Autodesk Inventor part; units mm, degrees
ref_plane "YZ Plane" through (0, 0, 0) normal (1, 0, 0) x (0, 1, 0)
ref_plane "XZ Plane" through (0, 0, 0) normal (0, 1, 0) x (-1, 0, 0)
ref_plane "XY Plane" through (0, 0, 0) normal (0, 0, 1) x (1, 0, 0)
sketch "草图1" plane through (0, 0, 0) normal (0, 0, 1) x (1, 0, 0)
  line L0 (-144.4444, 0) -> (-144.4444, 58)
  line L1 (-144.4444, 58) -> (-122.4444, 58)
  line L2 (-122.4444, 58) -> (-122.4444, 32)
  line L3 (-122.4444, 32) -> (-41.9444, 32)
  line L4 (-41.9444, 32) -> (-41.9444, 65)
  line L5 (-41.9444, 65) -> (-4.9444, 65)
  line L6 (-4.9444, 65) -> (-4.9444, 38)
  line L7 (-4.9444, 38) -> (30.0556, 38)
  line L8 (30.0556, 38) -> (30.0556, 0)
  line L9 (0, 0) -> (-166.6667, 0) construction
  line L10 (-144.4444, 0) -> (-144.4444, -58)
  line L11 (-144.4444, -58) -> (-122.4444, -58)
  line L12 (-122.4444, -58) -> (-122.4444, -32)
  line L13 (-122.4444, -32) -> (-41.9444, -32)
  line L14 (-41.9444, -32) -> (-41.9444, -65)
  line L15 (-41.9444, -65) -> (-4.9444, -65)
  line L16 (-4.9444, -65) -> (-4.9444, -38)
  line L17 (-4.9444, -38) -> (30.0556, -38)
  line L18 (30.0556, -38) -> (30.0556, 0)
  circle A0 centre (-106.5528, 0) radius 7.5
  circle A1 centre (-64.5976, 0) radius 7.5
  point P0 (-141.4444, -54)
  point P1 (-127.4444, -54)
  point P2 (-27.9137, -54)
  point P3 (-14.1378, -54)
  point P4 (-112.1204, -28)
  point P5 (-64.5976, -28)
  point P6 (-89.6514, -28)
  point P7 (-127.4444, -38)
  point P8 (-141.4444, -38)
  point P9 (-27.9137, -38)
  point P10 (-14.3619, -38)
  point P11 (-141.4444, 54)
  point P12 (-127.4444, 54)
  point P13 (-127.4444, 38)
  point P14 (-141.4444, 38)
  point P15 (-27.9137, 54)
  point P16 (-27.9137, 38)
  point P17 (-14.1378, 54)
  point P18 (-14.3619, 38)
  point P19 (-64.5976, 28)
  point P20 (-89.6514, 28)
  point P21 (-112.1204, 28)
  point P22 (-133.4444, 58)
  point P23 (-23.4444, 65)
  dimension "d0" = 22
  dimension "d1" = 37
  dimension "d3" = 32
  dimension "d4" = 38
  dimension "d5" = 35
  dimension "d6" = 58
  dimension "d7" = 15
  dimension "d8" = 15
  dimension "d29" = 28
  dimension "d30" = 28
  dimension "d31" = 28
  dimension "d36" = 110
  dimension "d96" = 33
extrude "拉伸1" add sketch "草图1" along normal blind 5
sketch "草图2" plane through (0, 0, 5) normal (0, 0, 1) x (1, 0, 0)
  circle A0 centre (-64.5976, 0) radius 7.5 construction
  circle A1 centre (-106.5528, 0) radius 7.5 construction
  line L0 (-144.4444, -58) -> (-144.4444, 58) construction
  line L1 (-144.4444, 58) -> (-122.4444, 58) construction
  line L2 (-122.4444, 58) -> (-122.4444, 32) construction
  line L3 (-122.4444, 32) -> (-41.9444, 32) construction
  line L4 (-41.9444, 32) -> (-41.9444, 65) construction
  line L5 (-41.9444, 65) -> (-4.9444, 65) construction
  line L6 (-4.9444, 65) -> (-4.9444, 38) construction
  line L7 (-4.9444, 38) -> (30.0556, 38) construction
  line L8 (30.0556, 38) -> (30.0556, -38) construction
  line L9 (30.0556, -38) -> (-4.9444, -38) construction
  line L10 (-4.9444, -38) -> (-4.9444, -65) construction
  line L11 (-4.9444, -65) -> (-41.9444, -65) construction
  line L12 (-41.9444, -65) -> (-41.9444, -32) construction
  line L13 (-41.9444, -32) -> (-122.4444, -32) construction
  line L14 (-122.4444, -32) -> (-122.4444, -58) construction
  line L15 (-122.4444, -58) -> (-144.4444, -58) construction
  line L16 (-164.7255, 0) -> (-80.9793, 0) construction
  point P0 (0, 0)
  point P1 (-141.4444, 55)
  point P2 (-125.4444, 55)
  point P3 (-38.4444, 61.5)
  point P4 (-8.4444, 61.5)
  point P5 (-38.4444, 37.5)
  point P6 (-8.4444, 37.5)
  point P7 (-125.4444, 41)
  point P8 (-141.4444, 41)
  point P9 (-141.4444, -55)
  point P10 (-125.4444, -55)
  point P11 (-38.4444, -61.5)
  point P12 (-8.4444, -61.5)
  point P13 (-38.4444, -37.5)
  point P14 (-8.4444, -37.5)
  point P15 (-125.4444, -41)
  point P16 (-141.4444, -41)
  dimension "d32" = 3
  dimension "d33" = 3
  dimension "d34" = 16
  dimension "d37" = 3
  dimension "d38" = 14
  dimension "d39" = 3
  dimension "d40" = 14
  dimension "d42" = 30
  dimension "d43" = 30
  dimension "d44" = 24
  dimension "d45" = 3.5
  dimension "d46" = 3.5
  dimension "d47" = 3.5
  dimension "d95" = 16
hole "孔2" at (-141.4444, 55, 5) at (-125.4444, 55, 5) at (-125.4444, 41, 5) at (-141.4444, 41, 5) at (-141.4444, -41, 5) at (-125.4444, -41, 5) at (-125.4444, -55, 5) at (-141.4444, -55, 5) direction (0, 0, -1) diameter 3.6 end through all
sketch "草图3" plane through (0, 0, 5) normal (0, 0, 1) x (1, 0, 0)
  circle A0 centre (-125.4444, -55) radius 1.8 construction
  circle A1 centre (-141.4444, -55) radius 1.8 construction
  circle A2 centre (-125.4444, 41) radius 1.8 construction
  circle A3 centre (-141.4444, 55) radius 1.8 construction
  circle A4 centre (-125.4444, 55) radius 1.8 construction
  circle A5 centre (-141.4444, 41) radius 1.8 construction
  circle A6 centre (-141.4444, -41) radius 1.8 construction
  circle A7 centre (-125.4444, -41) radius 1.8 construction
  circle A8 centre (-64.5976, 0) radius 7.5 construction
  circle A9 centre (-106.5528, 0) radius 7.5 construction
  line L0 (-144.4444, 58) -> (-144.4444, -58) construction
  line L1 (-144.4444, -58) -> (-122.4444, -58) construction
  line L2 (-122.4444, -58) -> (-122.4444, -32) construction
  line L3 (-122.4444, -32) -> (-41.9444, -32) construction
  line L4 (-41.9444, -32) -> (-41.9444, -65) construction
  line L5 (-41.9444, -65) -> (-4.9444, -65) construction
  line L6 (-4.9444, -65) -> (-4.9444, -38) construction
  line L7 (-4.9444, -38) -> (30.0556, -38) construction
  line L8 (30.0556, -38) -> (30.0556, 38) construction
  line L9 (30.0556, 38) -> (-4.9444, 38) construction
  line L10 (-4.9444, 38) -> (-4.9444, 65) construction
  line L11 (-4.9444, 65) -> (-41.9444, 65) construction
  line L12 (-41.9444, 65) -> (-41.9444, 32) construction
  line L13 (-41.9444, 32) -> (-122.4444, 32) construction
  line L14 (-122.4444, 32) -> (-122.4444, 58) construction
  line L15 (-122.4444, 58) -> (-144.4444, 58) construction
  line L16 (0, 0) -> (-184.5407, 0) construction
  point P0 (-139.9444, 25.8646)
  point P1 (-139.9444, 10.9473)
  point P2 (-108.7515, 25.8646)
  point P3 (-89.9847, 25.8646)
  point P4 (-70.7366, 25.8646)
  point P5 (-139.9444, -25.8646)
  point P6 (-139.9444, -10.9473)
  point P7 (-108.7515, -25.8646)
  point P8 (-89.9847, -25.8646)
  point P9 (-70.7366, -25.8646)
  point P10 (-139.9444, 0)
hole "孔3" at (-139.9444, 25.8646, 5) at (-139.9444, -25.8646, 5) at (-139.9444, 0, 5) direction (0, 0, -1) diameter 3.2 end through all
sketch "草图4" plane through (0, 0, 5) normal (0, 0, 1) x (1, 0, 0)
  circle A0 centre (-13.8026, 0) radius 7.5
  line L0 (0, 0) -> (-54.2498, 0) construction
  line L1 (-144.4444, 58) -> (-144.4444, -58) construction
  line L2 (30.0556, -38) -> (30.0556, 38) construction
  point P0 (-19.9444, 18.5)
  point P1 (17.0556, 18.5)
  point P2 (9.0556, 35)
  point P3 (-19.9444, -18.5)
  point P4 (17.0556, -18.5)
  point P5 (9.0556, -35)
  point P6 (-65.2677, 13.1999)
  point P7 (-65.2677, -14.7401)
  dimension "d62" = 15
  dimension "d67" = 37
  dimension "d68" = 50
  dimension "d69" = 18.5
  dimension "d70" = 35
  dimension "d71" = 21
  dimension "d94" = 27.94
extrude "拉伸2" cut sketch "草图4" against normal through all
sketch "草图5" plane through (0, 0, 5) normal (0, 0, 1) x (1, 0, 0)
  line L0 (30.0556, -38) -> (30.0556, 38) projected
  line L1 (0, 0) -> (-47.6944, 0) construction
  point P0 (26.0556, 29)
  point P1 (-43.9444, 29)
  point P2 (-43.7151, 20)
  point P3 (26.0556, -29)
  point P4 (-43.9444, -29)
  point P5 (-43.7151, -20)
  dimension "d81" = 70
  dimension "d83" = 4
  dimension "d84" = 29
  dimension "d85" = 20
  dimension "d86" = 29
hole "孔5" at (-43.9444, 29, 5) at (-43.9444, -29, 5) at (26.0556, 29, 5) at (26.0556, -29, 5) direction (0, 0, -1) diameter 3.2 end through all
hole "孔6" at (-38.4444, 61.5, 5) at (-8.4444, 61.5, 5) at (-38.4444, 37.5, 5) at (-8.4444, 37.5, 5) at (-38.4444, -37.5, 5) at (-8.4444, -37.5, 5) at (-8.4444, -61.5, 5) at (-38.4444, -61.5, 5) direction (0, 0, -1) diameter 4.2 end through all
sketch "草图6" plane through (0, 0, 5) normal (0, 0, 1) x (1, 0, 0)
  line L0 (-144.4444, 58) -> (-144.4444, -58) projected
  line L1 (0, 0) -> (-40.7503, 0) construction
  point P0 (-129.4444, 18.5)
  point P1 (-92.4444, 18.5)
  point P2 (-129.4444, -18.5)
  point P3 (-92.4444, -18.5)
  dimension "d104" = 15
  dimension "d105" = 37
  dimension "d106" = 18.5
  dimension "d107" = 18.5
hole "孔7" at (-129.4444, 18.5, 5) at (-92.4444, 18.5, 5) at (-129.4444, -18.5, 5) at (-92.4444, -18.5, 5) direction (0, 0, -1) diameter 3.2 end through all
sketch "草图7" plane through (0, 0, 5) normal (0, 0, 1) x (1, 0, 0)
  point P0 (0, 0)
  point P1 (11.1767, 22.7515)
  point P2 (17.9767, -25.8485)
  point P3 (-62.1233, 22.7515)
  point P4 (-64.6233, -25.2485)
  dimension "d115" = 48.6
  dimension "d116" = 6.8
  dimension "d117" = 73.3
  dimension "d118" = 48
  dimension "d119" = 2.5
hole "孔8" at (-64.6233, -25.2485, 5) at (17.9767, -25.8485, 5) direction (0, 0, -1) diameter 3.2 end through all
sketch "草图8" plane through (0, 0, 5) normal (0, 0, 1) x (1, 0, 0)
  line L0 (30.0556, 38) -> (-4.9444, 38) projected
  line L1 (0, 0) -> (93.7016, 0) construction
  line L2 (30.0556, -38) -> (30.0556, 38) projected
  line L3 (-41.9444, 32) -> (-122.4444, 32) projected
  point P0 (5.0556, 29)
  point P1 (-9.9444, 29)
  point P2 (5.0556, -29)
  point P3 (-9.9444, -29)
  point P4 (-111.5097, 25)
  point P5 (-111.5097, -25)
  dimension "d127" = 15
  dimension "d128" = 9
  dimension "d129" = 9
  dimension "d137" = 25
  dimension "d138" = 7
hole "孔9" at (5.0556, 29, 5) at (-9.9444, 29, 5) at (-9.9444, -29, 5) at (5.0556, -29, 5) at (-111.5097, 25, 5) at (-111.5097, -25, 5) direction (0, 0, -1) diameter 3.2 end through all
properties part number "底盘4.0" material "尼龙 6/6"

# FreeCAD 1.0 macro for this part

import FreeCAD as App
import Part
import Sketcher
from FreeCAD import Vector


def add_polygon(sketch, points):
    """Adds a closed chain of lines whose ends are joined by coincident constraints."""
    first, n = sketch.GeometryCount, len(points)
    for a, b in zip(points, points[1:] + points[:1]):
        sketch.addGeometry(Part.LineSegment(App.Vector(*a, 0), App.Vector(*b, 0)), False)
    for i in range(n):
        sketch.addConstraint(Sketcher.Constraint("Coincident", first + i, 2, first + (i + 1) % n, 1))

doc = App.newDocument("Part")
body = doc.addObject("PartDesign::Body", "Body")

sketch1 = body.newObject("Sketcher::SketchObject", "Sketch")
sketch1.AttachmentSupport = (doc.getObject("XY_Plane"), [""])
sketch1.MapMode = "FlatFace"
add_polygon(sketch1, [(-144, 58), (-144, -58), (-122, -58), (-122, -32), (-42, -32), (-42, -65), (-5, -65), (-5, -38), (30, -38), (30, 38), (-5, 38), (-5, 65), (-42, 65), (-42, 32), (-122, 32), (-122, 58)])
sketch1.addGeometry(Part.Circle(Vector(-107, 0, 0), Vector(0, 0, 1), 8), False)
sketch1.addGeometry(Part.Circle(Vector(-65, 0, 0), Vector(0, 0, 1), 8), False)
sketch1.addConstraint(Sketcher.Constraint("Vertical", 0))
sketch1.addConstraint(Sketcher.Constraint("Horizontal", 1))
sketch1.addConstraint(Sketcher.Constraint("Vertical", 2))
sketch1.addConstraint(Sketcher.Constraint("Horizontal", 3))
sketch1.addConstraint(Sketcher.Constraint("Vertical", 4))
sketch1.addConstraint(Sketcher.Constraint("Horizontal", 5))
sketch1.addConstraint(Sketcher.Constraint("Vertical", 6))
sketch1.addConstraint(Sketcher.Constraint("Horizontal", 7))
sketch1.addConstraint(Sketcher.Constraint("Vertical", 8))
sketch1.addConstraint(Sketcher.Constraint("Horizontal", 9))
sketch1.addConstraint(Sketcher.Constraint("Vertical", 10))
sketch1.addConstraint(Sketcher.Constraint("Horizontal", 11))
sketch1.addConstraint(Sketcher.Constraint("Vertical", 12))
sketch1.addConstraint(Sketcher.Constraint("Horizontal", 13))
sketch1.addConstraint(Sketcher.Constraint("Vertical", 14))
sketch1.addConstraint(Sketcher.Constraint("Horizontal", 15))
sketch1.addConstraint(Sketcher.Constraint("Equal", 16, 17))
sketch1.addConstraint(Sketcher.Constraint("Symmetric", 6, 2, 9, 2, -1))
sketch1.addConstraint(Sketcher.Constraint("Symmetric", 4, 2, 11, 2, -1))
sketch1.addConstraint(Sketcher.Constraint("Symmetric", 2, 2, 13, 2, -1))
sketch1.addConstraint(Sketcher.Constraint("PointOnObject", 16, 3, -1))
sketch1.addConstraint(Sketcher.Constraint("PointOnObject", 17, 3, -1))
sketch1.addConstraint(Sketcher.Constraint("Equal", 2, 14))
sketch1.addConstraint(Sketcher.Constraint("Diameter", 16, 15.0))
sketch1.addConstraint(Sketcher.Constraint("DistanceX", 1, 1, 1, 2, 22.0))
sketch1.addConstraint(Sketcher.Constraint("DistanceX", 5, 1, 5, 2, 37.0))
sketch1.addConstraint(Sketcher.Constraint("DistanceX", 7, 1, 7, 2, 35.0))
sketch1.addConstraint(Sketcher.Constraint("DistanceY", 4, 2, 4, 1, 33.0))
sketch1.addConstraint(Sketcher.Constraint("DistanceY", 0, 2, -1, 1, 58.0))
sketch1.addConstraint(Sketcher.Constraint("DistanceY", 2, 2, -1, 1, 32.0))
sketch1.addConstraint(Sketcher.Constraint("DistanceY", 6, 2, -1, 1, 38.0))
sketch1.addConstraint(Sketcher.Constraint("DistanceX", 3, 1, 3, 2, 80.5))
sketch1.addConstraint(Sketcher.Constraint("DistanceX", 16, 3, -1, 1, 106.5528))
sketch1.addConstraint(Sketcher.Constraint("DistanceX", 17, 3, -1, 1, 64.5976))
sketch1.addConstraint(Sketcher.Constraint("DistanceX", 0, 2, -1, 1, 144.4444))
pad1 = body.newObject("PartDesign::Pad", "Pad")
pad1.Profile = sketch1
pad1.Length = 5

sketch2 = body.newObject("Sketcher::SketchObject", "Sketch001")
sketch2.AttachmentSupport = (doc.getObject("XY_Plane"), [""])
sketch2.MapMode = "FlatFace"
sketch2.AttachmentOffset = App.Placement(Vector(0, 0, 5), App.Rotation())
sketch2.addGeometry(Part.Circle(Vector(-141.4, 55, 0), Vector(0, 0, 1), 1.8), False)
sketch2.addGeometry(Part.Circle(Vector(-125.4, 55, 0), Vector(0, 0, 1), 1.8), False)
sketch2.addGeometry(Part.Circle(Vector(-125.4, 41, 0), Vector(0, 0, 1), 1.8), False)
sketch2.addGeometry(Part.Circle(Vector(-141.4, 41, 0), Vector(0, 0, 1), 1.8), False)
sketch2.addGeometry(Part.Circle(Vector(-141.4, -41, 0), Vector(0, 0, 1), 1.8), False)
sketch2.addGeometry(Part.Circle(Vector(-125.4, -41, 0), Vector(0, 0, 1), 1.8), False)
sketch2.addGeometry(Part.Circle(Vector(-125.4, -55, 0), Vector(0, 0, 1), 1.8), False)
sketch2.addGeometry(Part.Circle(Vector(-141.4, -55, 0), Vector(0, 0, 1), 1.8), False)
sketch2.addConstraint(Sketcher.Constraint("Equal", 0, 1))
sketch2.addConstraint(Sketcher.Constraint("Equal", 1, 2))
sketch2.addConstraint(Sketcher.Constraint("Equal", 2, 3))
sketch2.addConstraint(Sketcher.Constraint("Equal", 3, 4))
sketch2.addConstraint(Sketcher.Constraint("Equal", 4, 5))
sketch2.addConstraint(Sketcher.Constraint("Equal", 5, 6))
sketch2.addConstraint(Sketcher.Constraint("Equal", 6, 7))
sketch2.addConstraint(Sketcher.Constraint("Symmetric", 3, 3, 4, 3, -1))
sketch2.addConstraint(Sketcher.Constraint("Symmetric", 2, 3, 5, 3, -1))
sketch2.addConstraint(Sketcher.Constraint("Symmetric", 1, 3, 6, 3, -1))
sketch2.addConstraint(Sketcher.Constraint("Symmetric", 0, 3, 7, 3, -1))
sketch2.addConstraint(Sketcher.Constraint("Horizontal", 0, 3, 1, 3))
sketch2.addConstraint(Sketcher.Constraint("Horizontal", 2, 3, 3, 3))
sketch2.addConstraint(Sketcher.Constraint("Vertical", 1, 3, 2, 3))
sketch2.addConstraint(Sketcher.Constraint("Vertical", 0, 3, 3, 3))
sketch2.addConstraint(Sketcher.Constraint("Diameter", 0, 3.6))
sketch2.addConstraint(Sketcher.Constraint("DistanceY", -1, 1, 0, 3, 55.0))
sketch2.addConstraint(Sketcher.Constraint("DistanceY", -1, 1, 2, 3, 41.0))
sketch2.addConstraint(Sketcher.Constraint("DistanceX", 0, 3, 1, 3, 16.0))
sketch2.addConstraint(Sketcher.Constraint("DistanceX", 0, 3, -1, 1, 141.4444))
doc.recompute()
hole = body.newObject("PartDesign::Hole", "Hole")
hole.Profile = sketch2
hole.ThreadType = "None"
hole.Diameter = 3.6
hole.DepthType = "ThroughAll"

sketch3 = body.newObject("Sketcher::SketchObject", "Sketch002")
sketch3.AttachmentSupport = (doc.getObject("XY_Plane"), [""])
sketch3.MapMode = "FlatFace"
sketch3.AttachmentOffset = App.Placement(Vector(0, 0, 5), App.Rotation())
sketch3.addGeometry(Part.Circle(Vector(-139.9, 25.9, 0), Vector(0, 0, 1), 1.6), False)
sketch3.addGeometry(Part.Circle(Vector(-139.9, -25.9, 0), Vector(0, 0, 1), 1.6), False)
sketch3.addGeometry(Part.Circle(Vector(-139.9, 0, 0), Vector(0, 0, 1), 1.6), False)
sketch3.addConstraint(Sketcher.Constraint("Equal", 0, 1))
sketch3.addConstraint(Sketcher.Constraint("Equal", 1, 2))
sketch3.addConstraint(Sketcher.Constraint("Symmetric", 0, 3, 1, 3, -1))
sketch3.addConstraint(Sketcher.Constraint("PointOnObject", 2, 3, -1))
sketch3.addConstraint(Sketcher.Constraint("Vertical", 1, 3, 2, 3))
sketch3.addConstraint(Sketcher.Constraint("Diameter", 0, 3.2))
sketch3.addConstraint(Sketcher.Constraint("DistanceX", 0, 3, -1, 1, 139.9444))
sketch3.addConstraint(Sketcher.Constraint("DistanceY", -1, 1, 0, 3, 25.8646))
doc.recompute()
hole2 = body.newObject("PartDesign::Hole", "Hole001")
hole2.Profile = sketch3
hole2.ThreadType = "None"
hole2.Diameter = 3.2
hole2.DepthType = "ThroughAll"

sketch4 = body.newObject("Sketcher::SketchObject", "Sketch003")
sketch4.AttachmentSupport = (doc.getObject("XY_Plane"), [""])
sketch4.MapMode = "FlatFace"
sketch4.AttachmentOffset = App.Placement(Vector(0, 0, 5), App.Rotation())
sketch4.addGeometry(Part.Circle(Vector(-14, 0, 0), Vector(0, 0, 1), 8), False)
sketch4.addConstraint(Sketcher.Constraint("PointOnObject", 0, 3, -1))
sketch4.addConstraint(Sketcher.Constraint("Diameter", 0, 15.0))
sketch4.addConstraint(Sketcher.Constraint("DistanceX", 0, 3, -1, 1, 13.8026))
pocket1 = body.newObject("PartDesign::Pocket", "Pocket")
pocket1.Profile = sketch4
pocket1.Type = "ThroughAll"

sketch5 = body.newObject("Sketcher::SketchObject", "Sketch004")
sketch5.AttachmentSupport = (doc.getObject("XY_Plane"), [""])
sketch5.MapMode = "FlatFace"
sketch5.AttachmentOffset = App.Placement(Vector(0, 0, 5), App.Rotation())
sketch5.addGeometry(Part.Circle(Vector(-43.9, 29, 0), Vector(0, 0, 1), 1.6), False)
sketch5.addGeometry(Part.Circle(Vector(-43.9, -29, 0), Vector(0, 0, 1), 1.6), False)
sketch5.addGeometry(Part.Circle(Vector(26.1, 29, 0), Vector(0, 0, 1), 1.6), False)
sketch5.addGeometry(Part.Circle(Vector(26.1, -29, 0), Vector(0, 0, 1), 1.6), False)
sketch5.addConstraint(Sketcher.Constraint("Equal", 0, 1))
sketch5.addConstraint(Sketcher.Constraint("Equal", 1, 2))
sketch5.addConstraint(Sketcher.Constraint("Equal", 2, 3))
sketch5.addConstraint(Sketcher.Constraint("Symmetric", 0, 3, 1, 3, -1))
sketch5.addConstraint(Sketcher.Constraint("Symmetric", 2, 3, 3, 3, -1))
sketch5.addConstraint(Sketcher.Constraint("Horizontal", 0, 3, 2, 3))
sketch5.addConstraint(Sketcher.Constraint("Diameter", 0, 3.2))
sketch5.addConstraint(Sketcher.Constraint("DistanceY", -1, 1, 0, 3, 29.0))
sketch5.addConstraint(Sketcher.Constraint("DistanceX", 0, 3, 2, 3, 70.0))
sketch5.addConstraint(Sketcher.Constraint("DistanceX", 0, 3, -1, 1, 43.9444))
doc.recompute()
hole3 = body.newObject("PartDesign::Hole", "Hole002")
hole3.Profile = sketch5
hole3.ThreadType = "None"
hole3.Diameter = 3.2
hole3.DepthType = "ThroughAll"

sketch6 = body.newObject("Sketcher::SketchObject", "Sketch005")
sketch6.AttachmentSupport = (doc.getObject("XY_Plane"), [""])
sketch6.MapMode = "FlatFace"
sketch6.AttachmentOffset = App.Placement(Vector(0, 0, 5), App.Rotation())
sketch6.addGeometry(Part.Circle(Vector(-38.4, 61.5, 0), Vector(0, 0, 1), 2.1), False)
sketch6.addGeometry(Part.Circle(Vector(-8.4, 61.5, 0), Vector(0, 0, 1), 2.1), False)
sketch6.addGeometry(Part.Circle(Vector(-38.4, 37.5, 0), Vector(0, 0, 1), 2.1), False)
sketch6.addGeometry(Part.Circle(Vector(-8.4, 37.5, 0), Vector(0, 0, 1), 2.1), False)
sketch6.addGeometry(Part.Circle(Vector(-38.4, -37.5, 0), Vector(0, 0, 1), 2.1), False)
sketch6.addGeometry(Part.Circle(Vector(-8.4, -37.5, 0), Vector(0, 0, 1), 2.1), False)
sketch6.addGeometry(Part.Circle(Vector(-8.4, -61.5, 0), Vector(0, 0, 1), 2.1), False)
sketch6.addGeometry(Part.Circle(Vector(-38.4, -61.5, 0), Vector(0, 0, 1), 2.1), False)
sketch6.addConstraint(Sketcher.Constraint("Equal", 0, 1))
sketch6.addConstraint(Sketcher.Constraint("Equal", 1, 2))
sketch6.addConstraint(Sketcher.Constraint("Equal", 2, 3))
sketch6.addConstraint(Sketcher.Constraint("Equal", 3, 4))
sketch6.addConstraint(Sketcher.Constraint("Equal", 4, 5))
sketch6.addConstraint(Sketcher.Constraint("Equal", 5, 6))
sketch6.addConstraint(Sketcher.Constraint("Equal", 6, 7))
sketch6.addConstraint(Sketcher.Constraint("Symmetric", 2, 3, 4, 3, -1))
sketch6.addConstraint(Sketcher.Constraint("Symmetric", 3, 3, 5, 3, -1))
sketch6.addConstraint(Sketcher.Constraint("Symmetric", 1, 3, 6, 3, -1))
sketch6.addConstraint(Sketcher.Constraint("Symmetric", 0, 3, 7, 3, -1))
sketch6.addConstraint(Sketcher.Constraint("Horizontal", 0, 3, 1, 3))
sketch6.addConstraint(Sketcher.Constraint("Horizontal", 2, 3, 3, 3))
sketch6.addConstraint(Sketcher.Constraint("Vertical", 0, 3, 2, 3))
sketch6.addConstraint(Sketcher.Constraint("Vertical", 1, 3, 3, 3))
sketch6.addConstraint(Sketcher.Constraint("Diameter", 0, 4.2))
sketch6.addConstraint(Sketcher.Constraint("DistanceX", 0, 3, 1, 3, 30.0))
sketch6.addConstraint(Sketcher.Constraint("DistanceY", 2, 3, 0, 3, 24.0))
sketch6.addConstraint(Sketcher.Constraint("DistanceY", 4, 3, 2, 3, 75.0))
sketch6.addConstraint(Sketcher.Constraint("DistanceX", 0, 3, -1, 1, 38.4444))
doc.recompute()
hole4 = body.newObject("PartDesign::Hole", "Hole003")
hole4.Profile = sketch6
hole4.ThreadType = "None"
hole4.Diameter = 4.2
hole4.DepthType = "ThroughAll"

sketch7 = body.newObject("Sketcher::SketchObject", "Sketch006")
sketch7.AttachmentSupport = (doc.getObject("XY_Plane"), [""])
sketch7.MapMode = "FlatFace"
sketch7.AttachmentOffset = App.Placement(Vector(0, 0, 5), App.Rotation())
sketch7.addGeometry(Part.Circle(Vector(-129.4, 18.5, 0), Vector(0, 0, 1), 1.6), False)
sketch7.addGeometry(Part.Circle(Vector(-92.4, 18.5, 0), Vector(0, 0, 1), 1.6), False)
sketch7.addGeometry(Part.Circle(Vector(-129.4, -18.5, 0), Vector(0, 0, 1), 1.6), False)
sketch7.addGeometry(Part.Circle(Vector(-92.4, -18.5, 0), Vector(0, 0, 1), 1.6), False)
sketch7.addConstraint(Sketcher.Constraint("Equal", 0, 1))
sketch7.addConstraint(Sketcher.Constraint("Equal", 1, 2))
sketch7.addConstraint(Sketcher.Constraint("Equal", 2, 3))
sketch7.addConstraint(Sketcher.Constraint("Symmetric", 0, 3, 2, 3, -1))
sketch7.addConstraint(Sketcher.Constraint("Symmetric", 1, 3, 3, 3, -1))
sketch7.addConstraint(Sketcher.Constraint("Horizontal", 0, 3, 1, 3))
sketch7.addConstraint(Sketcher.Constraint("Diameter", 0, 3.2))
sketch7.addConstraint(Sketcher.Constraint("DistanceX", 0, 3, 1, 3, 37.0))
sketch7.addConstraint(Sketcher.Constraint("DistanceY", 2, 3, 0, 3, 37.0))
sketch7.addConstraint(Sketcher.Constraint("DistanceX", 0, 3, -1, 1, 129.4444))
doc.recompute()
hole5 = body.newObject("PartDesign::Hole", "Hole004")
hole5.Profile = sketch7
hole5.ThreadType = "None"
hole5.Diameter = 3.2
hole5.DepthType = "ThroughAll"

sketch8 = body.newObject("Sketcher::SketchObject", "Sketch007")
sketch8.AttachmentSupport = (doc.getObject("XY_Plane"), [""])
sketch8.MapMode = "FlatFace"
sketch8.AttachmentOffset = App.Placement(Vector(0, 0, 5), App.Rotation())
sketch8.addGeometry(Part.Circle(Vector(-64.6, -25.2, 0), Vector(0, 0, 1), 1.6), False)
sketch8.addGeometry(Part.Circle(Vector(18, -25.8, 0), Vector(0, 0, 1), 1.6), False)
sketch8.addConstraint(Sketcher.Constraint("Equal", 0, 1))
sketch8.addConstraint(Sketcher.Constraint("Diameter", 0, 3.2))
sketch8.addConstraint(Sketcher.Constraint("DistanceX", 0, 3, 1, 3, 82.6))
sketch8.addConstraint(Sketcher.Constraint("DistanceY", 1, 3, 0, 3, 0.6))
sketch8.addConstraint(Sketcher.Constraint("DistanceX", 0, 3, -1, 1, 64.6233))
sketch8.addConstraint(Sketcher.Constraint("DistanceY", 0, 3, -1, 1, 25.2485))
doc.recompute()
hole6 = body.newObject("PartDesign::Hole", "Hole005")
hole6.Profile = sketch8
hole6.ThreadType = "None"
hole6.Diameter = 3.2
hole6.DepthType = "ThroughAll"

sketch9 = body.newObject("Sketcher::SketchObject", "Sketch008")
sketch9.AttachmentSupport = (doc.getObject("XY_Plane"), [""])
sketch9.MapMode = "FlatFace"
sketch9.AttachmentOffset = App.Placement(Vector(0, 0, 5), App.Rotation())
sketch9.addGeometry(Part.Circle(Vector(5.1, 29, 0), Vector(0, 0, 1), 1.6), False)
sketch9.addGeometry(Part.Circle(Vector(-9.9, 29, 0), Vector(0, 0, 1), 1.6), False)
sketch9.addGeometry(Part.Circle(Vector(-9.9, -29, 0), Vector(0, 0, 1), 1.6), False)
sketch9.addGeometry(Part.Circle(Vector(5.1, -29, 0), Vector(0, 0, 1), 1.6), False)
sketch9.addGeometry(Part.Circle(Vector(-111.5, 25, 0), Vector(0, 0, 1), 1.6), False)
sketch9.addGeometry(Part.Circle(Vector(-111.5, -25, 0), Vector(0, 0, 1), 1.6), False)
sketch9.addConstraint(Sketcher.Constraint("Equal", 0, 1))
sketch9.addConstraint(Sketcher.Constraint("Equal", 1, 2))
sketch9.addConstraint(Sketcher.Constraint("Equal", 2, 3))
sketch9.addConstraint(Sketcher.Constraint("Equal", 3, 4))
sketch9.addConstraint(Sketcher.Constraint("Equal", 4, 5))
sketch9.addConstraint(Sketcher.Constraint("Symmetric", 1, 3, 2, 3, -1))
sketch9.addConstraint(Sketcher.Constraint("Symmetric", 0, 3, 3, 3, -1))
sketch9.addConstraint(Sketcher.Constraint("Symmetric", 4, 3, 5, 3, -1))
sketch9.addConstraint(Sketcher.Constraint("Horizontal", 0, 3, 1, 3))
sketch9.addConstraint(Sketcher.Constraint("Diameter", 0, 3.2))
sketch9.addConstraint(Sketcher.Constraint("DistanceY", -1, 1, 0, 3, 29.0))
sketch9.addConstraint(Sketcher.Constraint("DistanceY", -1, 1, 4, 3, 25.0))
sketch9.addConstraint(Sketcher.Constraint("DistanceX", 1, 3, 0, 3, 15.0))
sketch9.addConstraint(Sketcher.Constraint("DistanceX", -1, 1, 0, 3, 5.0556))
sketch9.addConstraint(Sketcher.Constraint("DistanceX", 4, 3, -1, 1, 111.5097))
doc.recompute()
hole7 = body.newObject("PartDesign::Hole", "Hole006")
hole7.Profile = sketch9
hole7.ThreadType = "None"
hole7.Diameter = 3.2
hole7.DepthType = "ThroughAll"

doc.recompute()
